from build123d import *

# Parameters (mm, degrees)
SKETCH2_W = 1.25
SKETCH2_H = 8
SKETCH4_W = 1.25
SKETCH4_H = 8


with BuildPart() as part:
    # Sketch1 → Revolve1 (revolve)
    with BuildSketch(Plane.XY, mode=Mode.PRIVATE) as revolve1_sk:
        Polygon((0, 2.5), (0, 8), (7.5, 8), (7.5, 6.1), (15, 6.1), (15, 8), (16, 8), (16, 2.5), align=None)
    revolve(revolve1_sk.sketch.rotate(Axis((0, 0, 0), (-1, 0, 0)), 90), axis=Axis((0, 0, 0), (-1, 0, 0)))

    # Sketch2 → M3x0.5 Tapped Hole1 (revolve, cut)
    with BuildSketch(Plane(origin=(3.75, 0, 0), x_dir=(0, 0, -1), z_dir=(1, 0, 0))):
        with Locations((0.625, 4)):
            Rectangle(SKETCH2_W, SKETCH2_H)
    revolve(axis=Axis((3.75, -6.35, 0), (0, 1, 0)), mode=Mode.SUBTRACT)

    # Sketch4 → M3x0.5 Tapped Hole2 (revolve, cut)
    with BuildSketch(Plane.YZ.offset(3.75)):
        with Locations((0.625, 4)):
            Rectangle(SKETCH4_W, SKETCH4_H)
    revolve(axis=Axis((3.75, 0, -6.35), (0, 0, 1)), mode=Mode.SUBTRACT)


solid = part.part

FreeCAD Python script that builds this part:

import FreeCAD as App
import Part
import Sketcher
from FreeCAD import Vector
Q = App.Units.Quantity


def add_polygon(sketch, points):
    """Adds a closed chain of lines whose ends are joined by coincident constraints."""
    first, n = sketch.GeometryCount, len(points)
    for a, b in zip(points, points[1:] + points[:1]):
        sketch.addGeometry(Part.LineSegment(App.Vector(*a, 0), App.Vector(*b, 0)), False)
    for i in range(n):
        sketch.addConstraint(Sketcher.Constraint("Coincident", first + i, 2, first + (i + 1) % n, 1))

doc = App.newDocument("Part")
body = doc.addObject("PartDesign::Body", "Body")

# Sketch on XY plane
sketch1 = body.newObject("Sketcher::SketchObject", "Sketch")
sketch1.AttachmentSupport = (doc.getObject("XY_Plane"), [""])
sketch1.MapMode = "FlatFace"
add_polygon(sketch1, [(0, 8), (0, 2.5), (16, 2.5), (16, 8), (15, 8), (15, 6.1), (7.5, 6.1), (7.5, 8)])  # lines 0-7
sketch1.addConstraint(Sketcher.Constraint("Vertical", 0))
sketch1.addConstraint(Sketcher.Constraint("Horizontal", 1))
sketch1.addConstraint(Sketcher.Constraint("Vertical", 2))
sketch1.addConstraint(Sketcher.Constraint("Horizontal", 3))
sketch1.addConstraint(Sketcher.Constraint("Vertical", 4))
sketch1.addConstraint(Sketcher.Constraint("Horizontal", 5))
sketch1.addConstraint(Sketcher.Constraint("Vertical", 6))
sketch1.addConstraint(Sketcher.Constraint("Horizontal", 7))
sketch1.addConstraint(Sketcher.Constraint("PointOnObject", 0, 2, -2))
sketch1.addConstraint(Sketcher.Constraint("Horizontal", 3, 2, 6, 2))
sketch1.addConstraint(Sketcher.Constraint("Equal", 5, 7))
sketch1.addConstraint(Sketcher.Constraint("DistanceX", 1, 1, 1, 2, Q("16 mm")))
sketch1.addConstraint(Sketcher.Constraint("DistanceX", 3, 2, 3, 1, Q("1 mm")))
sketch1.addConstraint(Sketcher.Constraint("DistanceY", 0, 2, 0, 1, Q("5.5 mm")))
sketch1.addConstraint(Sketcher.Constraint("DistanceY", 4, 2, 4, 1, Q("1.9 mm")))
sketch1.addConstraint(Sketcher.Constraint("DistanceY", -1, 1, 2, 2, Q("8 mm")))
revolution = body.newObject("PartDesign::Revolution", "Revolution")
revolution.Profile = sketch1
revolution.ReferenceAxis = (sketch1, ["H_Axis"])
revolution.Angle = 360

# Sketch on YZ plane
sketch2 = body.newObject("Sketcher::SketchObject", "Sketch001")
sketch2.AttachmentSupport = (doc.getObject("YZ_Plane"), [""])
sketch2.MapMode = "FlatFace"
sketch2.AttachmentOffset = App.Placement(Vector(0, 0, 3.75), App.Rotation())
add_polygon(sketch2, [(8, 0), (0, 0), (0, -1.25), (8, -1.25)])  # lines 0-3
sketch2.addConstraint(Sketcher.Constraint("Horizontal", 0))
sketch2.addConstraint(Sketcher.Constraint("Vertical", 1))
sketch2.addConstraint(Sketcher.Constraint("Horizontal", 2))
sketch2.addConstraint(Sketcher.Constraint("Vertical", 3))
sketch2.addConstraint(Sketcher.Constraint("Coincident", 0, 2, -1, 1))
sketch2.addConstraint(Sketcher.Constraint("DistanceX", 0, 2, 0, 1, Q("8 mm")))
sketch2.addConstraint(Sketcher.Constraint("DistanceY", 1, 2, 1, 1, Q("1.25 mm")))
groove = body.newObject("PartDesign::Groove", "Groove")
groove.Profile = sketch2
groove.ReferenceAxis = (sketch2, ["H_Axis"])
groove.Angle = 360

# Sketch on YZ plane
sketch3 = body.newObject("Sketcher::SketchObject", "Sketch002")
sketch3.AttachmentSupport = (doc.getObject("YZ_Plane"), [""])
sketch3.MapMode = "FlatFace"
sketch3.AttachmentOffset = App.Placement(Vector(0, 0, 3.75), App.Rotation())
add_polygon(sketch3, [(0, 8), (0, 0), (1.25, 0), (1.25, 8)])  # lines 0-3
sketch3.addConstraint(Sketcher.Constraint("Vertical", 0))
sketch3.addConstraint(Sketcher.Constraint("Horizontal", 1))
sketch3.addConstraint(Sketcher.Constraint("Vertical", 2))
sketch3.addConstraint(Sketcher.Constraint("Horizontal", 3))
sketch3.addConstraint(Sketcher.Constraint("Coincident", 0, 2, -1, 1))
sketch3.addConstraint(Sketcher.Constraint("DistanceY", 0, 2, 0, 1, Q("8 mm")))
sketch3.addConstraint(Sketcher.Constraint("DistanceX", 1, 1, 1, 2, Q("1.25 mm")))
groove2 = body.newObject("PartDesign::Groove", "Groove001")
groove2.Profile = sketch3
groove2.ReferenceAxis = (sketch3, ["V_Axis"])
groove2.Angle = 360

doc.recompute()
